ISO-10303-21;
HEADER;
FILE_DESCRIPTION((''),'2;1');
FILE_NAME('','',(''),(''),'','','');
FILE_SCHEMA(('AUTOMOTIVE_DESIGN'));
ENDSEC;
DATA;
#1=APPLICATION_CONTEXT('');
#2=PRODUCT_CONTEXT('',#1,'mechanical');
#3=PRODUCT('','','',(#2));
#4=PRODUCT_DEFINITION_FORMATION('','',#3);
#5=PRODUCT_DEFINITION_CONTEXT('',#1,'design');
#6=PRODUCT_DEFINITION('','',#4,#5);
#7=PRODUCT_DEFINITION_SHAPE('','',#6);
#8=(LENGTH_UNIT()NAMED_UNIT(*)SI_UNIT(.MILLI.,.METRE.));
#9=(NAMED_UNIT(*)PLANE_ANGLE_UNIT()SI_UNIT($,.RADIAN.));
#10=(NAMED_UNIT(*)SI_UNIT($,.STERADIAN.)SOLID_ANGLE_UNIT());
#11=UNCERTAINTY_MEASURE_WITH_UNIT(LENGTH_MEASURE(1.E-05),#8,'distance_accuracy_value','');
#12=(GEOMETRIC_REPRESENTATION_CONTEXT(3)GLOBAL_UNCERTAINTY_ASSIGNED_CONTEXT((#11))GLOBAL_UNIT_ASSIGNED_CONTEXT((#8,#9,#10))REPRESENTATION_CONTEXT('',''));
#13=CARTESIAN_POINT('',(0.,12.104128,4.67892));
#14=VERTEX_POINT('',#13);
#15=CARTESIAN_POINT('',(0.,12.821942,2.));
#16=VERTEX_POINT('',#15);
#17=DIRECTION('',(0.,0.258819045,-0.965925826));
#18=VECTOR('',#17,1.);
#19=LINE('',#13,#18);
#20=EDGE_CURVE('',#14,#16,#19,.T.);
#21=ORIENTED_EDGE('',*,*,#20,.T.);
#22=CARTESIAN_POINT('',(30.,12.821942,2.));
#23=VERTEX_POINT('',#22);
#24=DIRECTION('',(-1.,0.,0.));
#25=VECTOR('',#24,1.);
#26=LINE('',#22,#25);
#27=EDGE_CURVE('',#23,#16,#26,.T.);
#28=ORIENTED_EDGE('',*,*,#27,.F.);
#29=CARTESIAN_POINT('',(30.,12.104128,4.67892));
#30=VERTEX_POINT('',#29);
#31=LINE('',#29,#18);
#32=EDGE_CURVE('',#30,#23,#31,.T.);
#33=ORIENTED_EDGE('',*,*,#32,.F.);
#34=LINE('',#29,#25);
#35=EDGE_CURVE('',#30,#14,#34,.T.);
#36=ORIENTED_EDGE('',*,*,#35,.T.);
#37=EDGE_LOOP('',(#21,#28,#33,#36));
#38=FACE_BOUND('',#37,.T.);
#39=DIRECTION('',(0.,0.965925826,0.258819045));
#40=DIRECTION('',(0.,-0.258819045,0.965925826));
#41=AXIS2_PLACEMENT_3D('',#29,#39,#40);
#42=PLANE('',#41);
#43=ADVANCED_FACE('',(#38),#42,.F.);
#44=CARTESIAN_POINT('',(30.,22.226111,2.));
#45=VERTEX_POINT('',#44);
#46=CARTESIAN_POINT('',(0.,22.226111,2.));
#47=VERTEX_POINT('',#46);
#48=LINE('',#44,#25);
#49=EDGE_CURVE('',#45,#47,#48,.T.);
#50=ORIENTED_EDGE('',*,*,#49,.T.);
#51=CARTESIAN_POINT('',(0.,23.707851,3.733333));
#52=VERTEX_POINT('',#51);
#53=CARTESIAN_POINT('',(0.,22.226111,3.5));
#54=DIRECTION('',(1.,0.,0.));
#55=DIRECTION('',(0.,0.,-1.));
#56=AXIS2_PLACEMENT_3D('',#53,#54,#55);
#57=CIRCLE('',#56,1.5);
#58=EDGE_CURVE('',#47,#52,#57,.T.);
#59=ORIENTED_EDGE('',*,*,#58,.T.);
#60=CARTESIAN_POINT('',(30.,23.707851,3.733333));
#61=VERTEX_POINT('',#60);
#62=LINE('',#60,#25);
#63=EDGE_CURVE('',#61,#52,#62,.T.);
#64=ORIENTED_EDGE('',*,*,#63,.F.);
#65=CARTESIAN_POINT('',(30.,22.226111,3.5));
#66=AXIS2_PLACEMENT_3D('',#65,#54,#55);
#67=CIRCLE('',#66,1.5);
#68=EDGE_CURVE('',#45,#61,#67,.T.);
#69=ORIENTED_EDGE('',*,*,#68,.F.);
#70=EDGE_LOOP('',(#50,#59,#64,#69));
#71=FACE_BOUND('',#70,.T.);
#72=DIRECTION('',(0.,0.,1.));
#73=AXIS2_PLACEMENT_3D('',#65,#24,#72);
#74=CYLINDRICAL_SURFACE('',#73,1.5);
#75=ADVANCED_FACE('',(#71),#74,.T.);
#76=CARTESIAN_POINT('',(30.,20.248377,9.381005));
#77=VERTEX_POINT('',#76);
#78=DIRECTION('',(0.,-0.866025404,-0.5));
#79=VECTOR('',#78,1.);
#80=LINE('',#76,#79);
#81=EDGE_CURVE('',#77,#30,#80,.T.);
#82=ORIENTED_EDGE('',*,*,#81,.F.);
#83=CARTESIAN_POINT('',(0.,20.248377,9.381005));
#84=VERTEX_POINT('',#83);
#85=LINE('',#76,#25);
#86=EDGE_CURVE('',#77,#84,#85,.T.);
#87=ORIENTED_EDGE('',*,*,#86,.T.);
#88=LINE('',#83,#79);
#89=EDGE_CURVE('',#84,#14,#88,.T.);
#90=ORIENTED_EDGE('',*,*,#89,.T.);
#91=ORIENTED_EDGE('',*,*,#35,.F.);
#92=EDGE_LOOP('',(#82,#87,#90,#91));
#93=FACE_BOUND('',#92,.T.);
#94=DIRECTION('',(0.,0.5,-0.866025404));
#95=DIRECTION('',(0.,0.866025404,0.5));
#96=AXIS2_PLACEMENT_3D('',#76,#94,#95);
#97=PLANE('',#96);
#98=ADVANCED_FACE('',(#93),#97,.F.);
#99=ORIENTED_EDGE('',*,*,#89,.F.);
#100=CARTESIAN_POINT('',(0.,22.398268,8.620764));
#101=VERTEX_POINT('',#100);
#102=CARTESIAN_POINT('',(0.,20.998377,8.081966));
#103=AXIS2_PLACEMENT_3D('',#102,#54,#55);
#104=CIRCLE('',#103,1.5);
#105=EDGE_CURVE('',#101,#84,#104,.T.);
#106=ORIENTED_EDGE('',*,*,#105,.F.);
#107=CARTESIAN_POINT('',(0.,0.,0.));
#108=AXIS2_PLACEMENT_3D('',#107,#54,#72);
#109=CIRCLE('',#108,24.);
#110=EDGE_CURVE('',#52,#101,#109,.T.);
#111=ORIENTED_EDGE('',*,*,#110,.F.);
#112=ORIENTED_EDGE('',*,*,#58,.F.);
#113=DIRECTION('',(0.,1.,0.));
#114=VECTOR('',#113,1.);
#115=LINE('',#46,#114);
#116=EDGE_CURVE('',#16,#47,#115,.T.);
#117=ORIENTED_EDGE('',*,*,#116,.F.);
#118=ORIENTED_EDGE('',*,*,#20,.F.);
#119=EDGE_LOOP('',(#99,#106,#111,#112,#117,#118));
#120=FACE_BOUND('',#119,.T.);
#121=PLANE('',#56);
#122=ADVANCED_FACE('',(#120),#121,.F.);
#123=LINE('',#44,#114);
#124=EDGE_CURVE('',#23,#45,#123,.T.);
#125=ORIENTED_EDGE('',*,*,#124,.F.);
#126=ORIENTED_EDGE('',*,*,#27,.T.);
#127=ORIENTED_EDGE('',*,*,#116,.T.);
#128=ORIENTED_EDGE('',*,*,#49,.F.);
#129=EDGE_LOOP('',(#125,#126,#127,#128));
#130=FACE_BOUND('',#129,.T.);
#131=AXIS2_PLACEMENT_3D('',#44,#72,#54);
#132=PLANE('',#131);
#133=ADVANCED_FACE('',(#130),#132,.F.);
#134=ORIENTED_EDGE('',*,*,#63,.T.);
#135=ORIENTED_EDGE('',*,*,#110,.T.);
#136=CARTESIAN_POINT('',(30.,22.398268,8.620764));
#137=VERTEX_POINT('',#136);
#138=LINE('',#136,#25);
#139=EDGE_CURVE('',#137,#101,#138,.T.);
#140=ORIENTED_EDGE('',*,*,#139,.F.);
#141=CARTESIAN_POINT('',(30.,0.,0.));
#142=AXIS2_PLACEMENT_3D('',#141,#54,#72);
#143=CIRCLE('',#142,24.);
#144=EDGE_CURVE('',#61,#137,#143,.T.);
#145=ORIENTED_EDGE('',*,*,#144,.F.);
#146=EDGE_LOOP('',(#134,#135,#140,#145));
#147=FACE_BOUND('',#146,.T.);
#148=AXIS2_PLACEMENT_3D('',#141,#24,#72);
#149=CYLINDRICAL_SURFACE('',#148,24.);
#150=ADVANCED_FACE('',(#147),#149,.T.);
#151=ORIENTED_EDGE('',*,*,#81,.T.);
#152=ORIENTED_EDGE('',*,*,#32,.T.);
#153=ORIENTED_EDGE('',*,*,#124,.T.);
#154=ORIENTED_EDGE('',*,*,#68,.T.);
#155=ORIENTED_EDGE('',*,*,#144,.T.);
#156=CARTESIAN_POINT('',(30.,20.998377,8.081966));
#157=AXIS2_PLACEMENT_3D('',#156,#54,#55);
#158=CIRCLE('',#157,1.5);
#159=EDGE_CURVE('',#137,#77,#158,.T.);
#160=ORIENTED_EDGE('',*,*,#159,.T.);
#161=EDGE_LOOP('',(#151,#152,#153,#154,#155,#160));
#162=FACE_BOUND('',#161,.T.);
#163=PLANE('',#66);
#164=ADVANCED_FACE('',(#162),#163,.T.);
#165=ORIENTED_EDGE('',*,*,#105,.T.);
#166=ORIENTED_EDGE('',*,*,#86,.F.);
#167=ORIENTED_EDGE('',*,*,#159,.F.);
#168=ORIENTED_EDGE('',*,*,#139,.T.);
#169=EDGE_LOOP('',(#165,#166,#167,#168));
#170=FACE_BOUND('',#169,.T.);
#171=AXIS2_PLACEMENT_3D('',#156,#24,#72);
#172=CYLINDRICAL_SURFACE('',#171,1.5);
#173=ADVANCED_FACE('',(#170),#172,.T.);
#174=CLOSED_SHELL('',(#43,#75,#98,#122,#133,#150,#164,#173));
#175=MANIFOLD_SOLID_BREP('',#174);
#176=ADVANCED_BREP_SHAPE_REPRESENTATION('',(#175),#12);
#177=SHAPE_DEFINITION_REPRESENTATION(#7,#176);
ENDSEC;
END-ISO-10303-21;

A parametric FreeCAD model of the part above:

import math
import FreeCAD as App
import Part
import Sketcher
Q = App.Units.Quantity

doc = App.newDocument("Part")
params = doc.addObject("Spreadsheet::Sheet", "Params")
for row, (alias, value) in enumerate([
    ("sketch1_radius", "24 mm"),
    ("sketch1_radius2", "1.5 mm"),
    ("pad1_length", "30 mm"),
], start=1):
    params.set(f"A{row}", alias)
    params.set(f"B{row}", "=" + value)
    params.setAlias(f"B{row}", alias)

body = doc.addObject("PartDesign::Body", "Body")

# Sketch on YZ plane
sketch1 = doc.addObject("Sketcher::SketchObject", "Sketch")
body.addObject(sketch1)
sketch1.AttachmentSupport = (doc.YZ_Plane, [""])
sketch1.MapMode = "FlatFace"
sketch1.addGeometry(Part.LineSegment(App.Vector(12.8, 2, 0), App.Vector(22.2, 2, 0)), False)
sketch1.addGeometry(Part.ArcOfCircle(Part.Circle(App.Vector(22.2, 3.5, 0), App.Vector(0, 0, 1), 1.5), math.radians(-90), math.radians(9)), False)
sketch1.addGeometry(Part.ArcOfCircle(Part.Circle(App.Vector(0, 0, 0), App.Vector(0, 0, 1), 24), math.radians(8.95), math.radians(21.05)), False)
sketch1.addGeometry(Part.ArcOfCircle(Part.Circle(App.Vector(21, 8.1, 0), App.Vector(0, 0, 1), 1.5), math.radians(21), math.radians(120)), False)
sketch1.addGeometry(Part.LineSegment(App.Vector(20.2, 9.4, 0), App.Vector(12.1, 4.7, 0)), False)
sketch1.addGeometry(Part.LineSegment(App.Vector(12.1, 4.7, 0), App.Vector(12.8, 2, 0)), False)
sketch1.addConstraint(Sketcher.Constraint("Tangent", 0, 2, 1, 1))
sketch1.addConstraint(Sketcher.Constraint("Tangent", 1, 2, 2, 1))
sketch1.addConstraint(Sketcher.Constraint("Tangent", 2, 2, 3, 1))
sketch1.addConstraint(Sketcher.Constraint("Tangent", 3, 2, 4, 1))
sketch1.addConstraint(Sketcher.Constraint("Coincident", 4, 2, 5, 1))
sketch1.addConstraint(Sketcher.Constraint("Coincident", 5, 2, 0, 1))
sketch1.addConstraint(Sketcher.Constraint("Horizontal", 0))
sketch1.addConstraint(Sketcher.Constraint("Coincident", 2, 3, -1, 1))
sketch1.addConstraint(Sketcher.Constraint("Equal", 1, 3))
sketch1.addConstraint(Sketcher.Constraint("Radius", 2, 24.0))
sketch1.addConstraint(Sketcher.Constraint("Radius", 1, 1.5))
sketch1.addConstraint(Sketcher.Constraint("Angle", 4, Q("-150 deg")))
sketch1.addConstraint(Sketcher.Constraint("Angle", 5, Q("-75 deg")))
sketch1.addConstraint(Sketcher.Constraint("DistanceY", -1, 1, 0, 2, 2.0))
sketch1.addConstraint(Sketcher.Constraint("DistanceX", 0, 1, 0, 2, 9.404168))
sketch1.addConstraint(Sketcher.Constraint("Distance", 4, 9.404168))
sketch1.setExpression("Constraints[9]", "Params.sketch1_radius")
sketch1.setExpression("Constraints[10]", "Params.sketch1_radius2")
pad1 = doc.addObject("PartDesign::Pad", "Pad")
body.addObject(pad1)
pad1.Profile = sketch1
pad1.setExpression("Length", "Params.pad1_length")

doc.recompute()
